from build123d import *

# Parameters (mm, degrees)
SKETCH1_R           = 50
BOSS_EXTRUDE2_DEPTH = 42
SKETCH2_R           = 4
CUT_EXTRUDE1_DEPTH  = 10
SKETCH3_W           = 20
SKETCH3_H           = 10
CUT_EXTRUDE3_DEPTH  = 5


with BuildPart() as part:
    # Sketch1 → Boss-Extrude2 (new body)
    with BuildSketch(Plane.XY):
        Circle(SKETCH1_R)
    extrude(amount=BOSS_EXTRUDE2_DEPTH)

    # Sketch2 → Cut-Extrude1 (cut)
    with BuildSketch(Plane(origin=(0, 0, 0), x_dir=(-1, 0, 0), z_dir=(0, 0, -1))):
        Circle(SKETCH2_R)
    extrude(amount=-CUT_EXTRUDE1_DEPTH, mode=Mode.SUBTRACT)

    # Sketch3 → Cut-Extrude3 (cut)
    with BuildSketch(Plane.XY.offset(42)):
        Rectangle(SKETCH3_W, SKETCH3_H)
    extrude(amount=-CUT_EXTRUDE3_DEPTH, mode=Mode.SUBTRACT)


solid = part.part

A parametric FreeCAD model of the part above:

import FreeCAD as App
import Part
import Sketcher
from FreeCAD import Vector

doc = App.newDocument("Part")
body = doc.addObject("PartDesign::Body", "Body")

# Sketch on XY plane
sketch1 = body.newObject("Sketcher::SketchObject", "Sketch")
sketch1.AttachmentSupport = (doc.getObject("XY_Plane"), [""])
sketch1.MapMode = "FlatFace"
sketch1.addGeometry(Part.Circle(Vector(0, 0, 0), Vector(0, 0, 1), 50), False)
sketch1.addConstraint([
    Sketcher.Constraint("Coincident", 0, 3, -1, 1),
    Sketcher.Constraint("Diameter", 0, 100.0),
])
pad1 = body.newObject("PartDesign::Pad", "Pad")
pad1.Profile = sketch1
pad1.Length = 42

# Sketch on XY plane
sketch2 = body.newObject("Sketcher::SketchObject", "Sketch001")
sketch2.AttachmentSupport = (doc.getObject("XY_Plane"), [""])
sketch2.MapMode = "FlatFace"
sketch2.addGeometry(Part.Circle(Vector(0, 0, 0), Vector(0, 0, 1), 4), False)
sketch2.addConstraint([
    Sketcher.Constraint("Coincident", 0, 3, -1, 1),
    Sketcher.Constraint("Diameter", 0, 8.0),
])
pocket1 = body.newObject("PartDesign::Pocket", "Pocket")
pocket1.Profile = sketch2
pocket1.Length = 10
pocket1.Reversed = True

# Sketch on XY plane
sketch3 = body.newObject("Sketcher::SketchObject", "Sketch002")
sketch3.AttachmentSupport = (doc.getObject("XY_Plane"), [""])
sketch3.MapMode = "FlatFace"
sketch3.AttachmentOffset = App.Placement(Vector(0, 0, 42), App.Rotation())
sketch3.addGeometry([
    Part.LineSegment(Vector(-10, 5, 0), Vector(-10, -5, 0)),
    Part.LineSegment(Vector(-10, -5, 0), Vector(10, -5, 0)),
    Part.LineSegment(Vector(10, -5, 0), Vector(10, 5, 0)),
    Part.LineSegment(Vector(10, 5, 0), Vector(-10, 5, 0)),
], False)
sketch3.addConstraint([
    Sketcher.Constraint("Coincident", 0, 2, 1, 1),
    Sketcher.Constraint("Coincident", 1, 2, 2, 1),
    Sketcher.Constraint("Coincident", 2, 2, 3, 1),
    Sketcher.Constraint("Coincident", 3, 2, 0, 1),
    Sketcher.Constraint("Vertical", 0),
    Sketcher.Constraint("Horizontal", 1),
    Sketcher.Constraint("Vertical", 2),
    Sketcher.Constraint("Horizontal", 3),
    Sketcher.Constraint("Symmetric", 0, 2, 2, 2, -1, 1),
    Sketcher.Constraint("DistanceX", 1, 1, 1, 2, 20.0),
    Sketcher.Constraint("DistanceY", 0, 2, 0, 1, 10.0),
])
pocket2 = body.newObject("PartDesign::Pocket", "Pocket001")
pocket2.Profile = sketch3
pocket2.Length = 5

doc.recompute()
